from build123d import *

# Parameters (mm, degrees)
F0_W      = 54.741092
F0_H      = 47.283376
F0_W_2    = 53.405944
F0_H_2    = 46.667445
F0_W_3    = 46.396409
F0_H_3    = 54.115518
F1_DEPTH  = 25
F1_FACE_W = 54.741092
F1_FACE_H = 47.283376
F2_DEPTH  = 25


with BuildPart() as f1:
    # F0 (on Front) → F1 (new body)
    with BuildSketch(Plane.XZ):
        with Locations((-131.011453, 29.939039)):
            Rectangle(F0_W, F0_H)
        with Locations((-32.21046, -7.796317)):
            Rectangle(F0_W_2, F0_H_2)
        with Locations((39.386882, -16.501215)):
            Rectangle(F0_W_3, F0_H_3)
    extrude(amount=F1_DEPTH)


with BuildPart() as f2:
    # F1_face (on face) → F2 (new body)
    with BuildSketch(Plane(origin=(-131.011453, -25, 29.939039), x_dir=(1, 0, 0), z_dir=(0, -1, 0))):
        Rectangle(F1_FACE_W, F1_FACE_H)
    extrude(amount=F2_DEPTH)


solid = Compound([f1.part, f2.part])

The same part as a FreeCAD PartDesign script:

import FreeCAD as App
import Part
import Sketcher

V = App.Vector
Q = App.Units.Quantity


def add_polygon(sketch, points):
    """Adds a closed chain of lines whose ends are joined by coincident constraints."""
    first, n = sketch.GeometryCount, len(points)
    for a, b in zip(points, points[1:] + points[:1]):
        sketch.addGeometry(Part.LineSegment(App.Vector(*a, 0), App.Vector(*b, 0)), False)
    for i in range(n):
        sketch.addConstraint(Sketcher.Constraint("Coincident", first + i, 2, first + (i + 1) % n, 1))

doc = App.newDocument("Part")
body = doc.addObject("PartDesign::Body", "Body")
body.AllowCompound = True

sketch1 = doc.addObject("Sketcher::SketchObject", "Sketch")
body.addObject(sketch1)
sketch1.AttachmentSupport = (doc.XZ_Plane, [""])
sketch1.MapMode = "FlatFace"
add_polygon(sketch1, [(-158, 54), (-158, 6), (-104, 6), (-104, 54)])
add_polygon(sketch1, [(-59, 16), (-59, -31), (-6, -31), (-6, 16)])
add_polygon(sketch1, [(16, 11), (16, -44), (63, -44), (63, 11)])
sketch1.addConstraint([
    Sketcher.Constraint("Vertical", 0),
    Sketcher.Constraint("Horizontal", 1),
    Sketcher.Constraint("Vertical", 2),
    Sketcher.Constraint("Horizontal", 3),
    Sketcher.Constraint("Vertical", 4),
    Sketcher.Constraint("Horizontal", 5),
    Sketcher.Constraint("Vertical", 6),
    Sketcher.Constraint("Horizontal", 7),
    Sketcher.Constraint("Vertical", 8),
    Sketcher.Constraint("Horizontal", 9),
    Sketcher.Constraint("Vertical", 10),
    Sketcher.Constraint("Horizontal", 11),
    Sketcher.Constraint("DistanceX", 0, 2, -1, 1, Q("158.381999 mm")),
    Sketcher.Constraint("DistanceX", 9, 1, 9, 2, Q("46.396409 mm")),
    Sketcher.Constraint("DistanceY", 8, 2, 8, 1, Q("54.115518 mm")),
    Sketcher.Constraint("DistanceX", 1, 1, 1, 2, Q("54.741092 mm")),
    Sketcher.Constraint("DistanceX", 5, 1, 5, 2, Q("53.405944 mm")),
    Sketcher.Constraint("DistanceY", 0, 2, 0, 1, Q("47.283376 mm")),
    Sketcher.Constraint("DistanceY", 4, 2, 4, 1, Q("46.667445 mm")),
    Sketcher.Constraint("DistanceY", -1, 1, 0, 2, Q("6.297351 mm")),
    Sketcher.Constraint("DistanceY", 4, 2, -1, 1, Q("31.130039 mm")),
    Sketcher.Constraint("DistanceX", 5, 2, -1, 1, Q("5.507488 mm")),
    Sketcher.Constraint("DistanceY", 8, 2, 6, 2, Q("59.096379 mm")),
    Sketcher.Constraint("DistanceX", 4, 2, 8, 2, Q("75.102109 mm")),
])
pad1 = doc.addObject("PartDesign::Pad", "Pad")
body.addObject(pad1)
pad1.Profile = sketch1
pad1.Length = 25
body2 = doc.addObject("PartDesign::Body", "Body001")

sketch2 = doc.addObject("Sketcher::SketchObject", "Sketch001")
body2.addObject(sketch2)
sketch2.AttachmentSupport = (doc.getObject("XZ_Plane001"), [""])
sketch2.MapMode = "FlatFace"
sketch2.AttachmentOffset = App.Placement(V(0, 0, 25), App.Rotation())
add_polygon(sketch2, [(-158, 54), (-158, 6), (-104, 6), (-104, 54)])
sketch2.addConstraint([
    Sketcher.Constraint("Vertical", 0),
    Sketcher.Constraint("Horizontal", 1),
    Sketcher.Constraint("Vertical", 2),
    Sketcher.Constraint("Horizontal", 3),
    Sketcher.Constraint("DistanceX", 0, 2, -1, 1, Q("158.381999 mm")),
    Sketcher.Constraint("DistanceX", 1, 1, 1, 2, Q("54.741092 mm")),
    Sketcher.Constraint("DistanceY", 0, 2, 0, 1, Q("47.283376 mm")),
    Sketcher.Constraint("DistanceY", -1, 1, 0, 2, Q("6.297351 mm")),
])
pad2 = doc.addObject("PartDesign::Pad", "Pad001")
body2.addObject(pad2)
pad2.Profile = sketch2
pad2.Length = 25

doc.recompute()
